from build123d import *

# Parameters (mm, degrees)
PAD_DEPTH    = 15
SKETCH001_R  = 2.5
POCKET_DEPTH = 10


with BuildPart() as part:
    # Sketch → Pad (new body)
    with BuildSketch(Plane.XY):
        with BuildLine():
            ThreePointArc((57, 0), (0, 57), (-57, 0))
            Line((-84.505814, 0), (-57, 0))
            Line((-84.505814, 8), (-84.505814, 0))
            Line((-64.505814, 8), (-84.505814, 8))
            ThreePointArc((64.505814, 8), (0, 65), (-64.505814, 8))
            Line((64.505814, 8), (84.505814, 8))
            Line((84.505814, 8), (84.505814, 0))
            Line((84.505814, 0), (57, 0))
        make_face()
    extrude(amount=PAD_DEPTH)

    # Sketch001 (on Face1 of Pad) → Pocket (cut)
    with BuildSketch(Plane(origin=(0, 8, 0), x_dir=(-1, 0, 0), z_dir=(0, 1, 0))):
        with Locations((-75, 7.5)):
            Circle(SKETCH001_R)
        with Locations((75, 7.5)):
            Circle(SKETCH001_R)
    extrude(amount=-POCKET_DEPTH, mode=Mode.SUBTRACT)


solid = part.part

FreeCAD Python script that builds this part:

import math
import FreeCAD as App
import Part
import Sketcher

doc = App.newDocument("Part")
params = doc.addObject("Spreadsheet::Sheet", "Params")
for row, (alias, value) in enumerate([
    ("sketch1_radius", "57 mm"),
    ("sketch1_radius2", "65 mm"),
    ("sketch1_width", "20 mm"),
    ("sketch1_height", "8 mm"),
    ("pad1_length", "15 mm"),
    ("sketch2_diameter", "5 mm"),
    ("pocket1_length", "10 mm"),
], start=1):
    params.set(f"A{row}", alias)
    params.set(f"B{row}", "=" + value)
    params.setAlias(f"B{row}", alias)

body = doc.addObject("PartDesign::Body", "Body")

# Sketch on XY plane
sketch1 = body.newObject("Sketcher::SketchObject", "Sketch")
sketch1.AttachmentSupport = (doc.getObject("XY_Plane"), [""])
sketch1.MapMode = "FlatFace"
sketch1.addGeometry(Part.ArcOfCircle(Part.Circle(App.Vector(0, 0, 0), App.Vector(0, 0, 1), 57), math.radians(0), math.radians(180)), False)
sketch1.addGeometry(Part.LineSegment(App.Vector(57, 0, 0), App.Vector(85, 0, 0)), False)
sketch1.addGeometry(Part.LineSegment(App.Vector(85, 0, 0), App.Vector(85, 8, 0)), False)
sketch1.addGeometry(Part.LineSegment(App.Vector(85, 8, 0), App.Vector(65, 8, 0)), False)
sketch1.addGeometry(Part.ArcOfCircle(Part.Circle(App.Vector(0, 0, 0), App.Vector(0, 0, 1), 65), math.radians(7), math.radians(173)), False)
sketch1.addGeometry(Part.LineSegment(App.Vector(-65, 8, 0), App.Vector(-85, 8, 0)), False)
sketch1.addGeometry(Part.LineSegment(App.Vector(-85, 8, 0), App.Vector(-85, 0, 0)), False)
sketch1.addGeometry(Part.LineSegment(App.Vector(-85, 0, 0), App.Vector(-57, 0, 0)), False)
sketch1.addConstraint(Sketcher.Constraint("Coincident", 0, 1, 1, 1))
sketch1.addConstraint(Sketcher.Constraint("Coincident", 1, 2, 2, 1))
sketch1.addConstraint(Sketcher.Constraint("Coincident", 2, 2, 3, 1))
sketch1.addConstraint(Sketcher.Constraint("Coincident", 3, 2, 4, 1))
sketch1.addConstraint(Sketcher.Constraint("Coincident", 4, 2, 5, 1))
sketch1.addConstraint(Sketcher.Constraint("Coincident", 5, 2, 6, 1))
sketch1.addConstraint(Sketcher.Constraint("Coincident", 6, 2, 7, 1))
sketch1.addConstraint(Sketcher.Constraint("Coincident", 7, 2, 0, 2))
sketch1.addConstraint(Sketcher.Constraint("Horizontal", 1))
sketch1.addConstraint(Sketcher.Constraint("Vertical", 2))
sketch1.addConstraint(Sketcher.Constraint("Horizontal", 3))
sketch1.addConstraint(Sketcher.Constraint("Horizontal", 5))
sketch1.addConstraint(Sketcher.Constraint("Vertical", 6))
sketch1.addConstraint(Sketcher.Constraint("Horizontal", 7))
sketch1.addConstraint(Sketcher.Constraint("Coincident", 0, 3, -1, 1))
sketch1.addConstraint(Sketcher.Constraint("Coincident", 4, 3, -1, 1))
sketch1.addConstraint(Sketcher.Constraint("Symmetric", 1, 2, 6, 2, -1, 1))
sketch1.addConstraint(Sketcher.Constraint("PointOnObject", 0, 1, -1))
sketch1.addConstraint(Sketcher.Constraint("Horizontal", 3, 2, 4, 2))
sketch1.addConstraint(Sketcher.Constraint("Radius", 0, 57.0))
sketch1.addConstraint(Sketcher.Constraint("Radius", 4, 65.0))
sketch1.addConstraint(Sketcher.Constraint("DistanceX", 3, 2, 3, 1, 20.0))
sketch1.addConstraint(Sketcher.Constraint("DistanceY", 2, 1, 2, 2, 8.0))
sketch1.setExpression("Constraints[19]", "Params.sketch1_radius")
sketch1.setExpression("Constraints[20]", "Params.sketch1_radius2")
sketch1.setExpression("Constraints[21]", "Params.sketch1_width")
sketch1.setExpression("Constraints[22]", "Params.sketch1_height")
pad1 = body.newObject("PartDesign::Pad", "Pad")
pad1.Profile = sketch1
pad1.setExpression("Length", "Params.pad1_length")

# Sketch on XZ plane
sketch2 = body.newObject("Sketcher::SketchObject", "Sketch001")
sketch2.AttachmentSupport = (doc.getObject("XZ_Plane"), [""])
sketch2.MapMode = "FlatFace"
sketch2.AttachmentOffset = App.Placement(App.Vector(0, 0, -8), App.Rotation())
sketch2.addGeometry(Part.Circle(App.Vector(75, 7.5, 0), App.Vector(0, 0, 1), 2.5), False)
sketch2.addGeometry(Part.Circle(App.Vector(-75, 7.5, 0), App.Vector(0, 0, 1), 2.5), False)
sketch2.addConstraint(Sketcher.Constraint("Equal", 0, 1))
sketch2.addConstraint(Sketcher.Constraint("Symmetric", 0, 3, 1, 3, -2))
sketch2.addConstraint(Sketcher.Constraint("Diameter", 0, 5.0))
sketch2.addConstraint(Sketcher.Constraint("DistanceX", -1, 1, 0, 3, 75.0))
sketch2.addConstraint(Sketcher.Constraint("DistanceY", -1, 1, 0, 3, 7.5))
sketch2.setExpression("Constraints[2]", "Params.sketch2_diameter")
pocket1 = body.newObject("PartDesign::Pocket", "Pocket")
pocket1.Profile = sketch2
pocket1.setExpression("Length", "Params.pocket1_length")
pocket1.Reversed = True

doc.recompute()
